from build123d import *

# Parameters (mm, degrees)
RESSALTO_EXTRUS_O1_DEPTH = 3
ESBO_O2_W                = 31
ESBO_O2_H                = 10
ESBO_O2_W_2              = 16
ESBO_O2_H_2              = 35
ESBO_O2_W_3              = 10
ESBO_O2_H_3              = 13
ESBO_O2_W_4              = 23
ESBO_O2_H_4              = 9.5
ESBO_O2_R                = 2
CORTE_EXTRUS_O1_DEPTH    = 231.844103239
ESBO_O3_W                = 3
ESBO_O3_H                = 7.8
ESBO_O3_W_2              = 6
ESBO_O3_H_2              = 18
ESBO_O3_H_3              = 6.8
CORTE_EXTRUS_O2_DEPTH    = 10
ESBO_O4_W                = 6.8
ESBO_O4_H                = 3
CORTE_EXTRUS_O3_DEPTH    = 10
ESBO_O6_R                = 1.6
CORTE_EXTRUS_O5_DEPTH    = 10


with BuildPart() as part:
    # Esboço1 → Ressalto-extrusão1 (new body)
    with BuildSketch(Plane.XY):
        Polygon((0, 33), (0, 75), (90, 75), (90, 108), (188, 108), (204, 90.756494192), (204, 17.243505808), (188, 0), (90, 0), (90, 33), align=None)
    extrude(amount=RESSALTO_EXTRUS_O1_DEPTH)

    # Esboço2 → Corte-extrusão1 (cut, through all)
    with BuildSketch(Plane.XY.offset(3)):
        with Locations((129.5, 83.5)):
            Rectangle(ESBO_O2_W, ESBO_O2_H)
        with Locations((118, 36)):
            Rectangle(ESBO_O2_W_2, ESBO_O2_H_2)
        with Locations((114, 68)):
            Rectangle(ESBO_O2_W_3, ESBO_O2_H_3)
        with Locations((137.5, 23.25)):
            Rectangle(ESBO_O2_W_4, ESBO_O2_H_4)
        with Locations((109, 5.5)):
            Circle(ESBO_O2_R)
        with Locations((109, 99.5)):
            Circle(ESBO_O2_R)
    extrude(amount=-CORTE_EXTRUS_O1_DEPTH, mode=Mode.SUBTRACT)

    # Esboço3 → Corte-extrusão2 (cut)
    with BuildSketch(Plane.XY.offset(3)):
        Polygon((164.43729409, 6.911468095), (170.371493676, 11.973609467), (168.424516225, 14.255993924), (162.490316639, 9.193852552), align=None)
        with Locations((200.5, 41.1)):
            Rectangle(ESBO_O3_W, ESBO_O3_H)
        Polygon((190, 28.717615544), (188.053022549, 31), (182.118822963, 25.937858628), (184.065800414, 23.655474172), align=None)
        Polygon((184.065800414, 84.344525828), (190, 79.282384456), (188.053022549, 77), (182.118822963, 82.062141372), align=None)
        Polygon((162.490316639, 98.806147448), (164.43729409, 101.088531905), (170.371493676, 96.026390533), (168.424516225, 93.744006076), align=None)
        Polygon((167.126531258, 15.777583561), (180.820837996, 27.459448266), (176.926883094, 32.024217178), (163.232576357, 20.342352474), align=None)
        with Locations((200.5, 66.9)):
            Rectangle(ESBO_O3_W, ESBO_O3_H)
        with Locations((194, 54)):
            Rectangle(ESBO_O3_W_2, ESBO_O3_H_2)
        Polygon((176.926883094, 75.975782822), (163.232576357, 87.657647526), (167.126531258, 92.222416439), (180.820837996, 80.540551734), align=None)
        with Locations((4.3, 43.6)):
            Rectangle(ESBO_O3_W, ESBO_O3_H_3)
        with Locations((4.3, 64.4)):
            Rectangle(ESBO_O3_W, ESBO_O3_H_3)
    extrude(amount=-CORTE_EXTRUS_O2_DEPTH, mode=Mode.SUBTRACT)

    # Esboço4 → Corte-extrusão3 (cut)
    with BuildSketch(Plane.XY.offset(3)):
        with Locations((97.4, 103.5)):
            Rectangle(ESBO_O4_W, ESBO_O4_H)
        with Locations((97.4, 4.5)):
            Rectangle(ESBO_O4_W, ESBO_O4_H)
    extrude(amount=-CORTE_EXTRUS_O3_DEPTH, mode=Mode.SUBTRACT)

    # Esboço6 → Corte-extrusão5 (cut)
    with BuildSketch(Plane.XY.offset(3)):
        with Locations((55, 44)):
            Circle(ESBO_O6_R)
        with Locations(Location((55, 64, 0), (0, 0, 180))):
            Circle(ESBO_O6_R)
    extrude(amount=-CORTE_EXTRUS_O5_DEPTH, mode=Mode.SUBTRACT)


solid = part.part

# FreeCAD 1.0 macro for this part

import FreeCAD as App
import Part
import Sketcher


def add_polygon(sketch, points):
    """Adds a closed chain of lines whose ends are joined by coincident constraints."""
    first, n = sketch.GeometryCount, len(points)
    for a, b in zip(points, points[1:] + points[:1]):
        sketch.addGeometry(Part.LineSegment(App.Vector(*a, 0), App.Vector(*b, 0)), False)
    for i in range(n):
        sketch.addConstraint(Sketcher.Constraint("Coincident", first + i, 2, first + (i + 1) % n, 1))

doc = App.newDocument("Part")
body = doc.addObject("PartDesign::Body", "Body")

sketch1 = body.newObject("Sketcher::SketchObject", "Sketch")
sketch1.AttachmentSupport = (doc.getObject("XY_Plane"), [""])
sketch1.MapMode = "FlatFace"
add_polygon(sketch1, [(0, 75), (0, 33), (90, 33), (90, 0), (188, 0), (204, 17.243506), (204, 90.756494), (188, 108), (90, 108), (90, 75)])
sketch1.addConstraint(Sketcher.Constraint("Vertical", 0))
sketch1.addConstraint(Sketcher.Constraint("Horizontal", 1))
sketch1.addConstraint(Sketcher.Constraint("Vertical", 2))
sketch1.addConstraint(Sketcher.Constraint("Horizontal", 3))
sketch1.addConstraint(Sketcher.Constraint("Vertical", 5))
sketch1.addConstraint(Sketcher.Constraint("Horizontal", 7))
sketch1.addConstraint(Sketcher.Constraint("Vertical", 8))
sketch1.addConstraint(Sketcher.Constraint("Horizontal", 9))
sketch1.addConstraint(Sketcher.Constraint("PointOnObject", 0, 2, -2))
sketch1.addConstraint(Sketcher.Constraint("PointOnObject", 2, 2, -1))
sketch1.addConstraint(Sketcher.Constraint("Vertical", 3, 2, 6, 2))
sketch1.addConstraint(Sketcher.Constraint("Vertical", 2, 2, 7, 2))
sketch1.addConstraint(Sketcher.Constraint("Equal", 2, 8))
sketch1.addConstraint(Sketcher.Constraint("Equal", 4, 6))
sketch1.addConstraint(Sketcher.Constraint("DistanceX", 1, 1, 1, 2, 90.0))
sketch1.addConstraint(Sketcher.Constraint("DistanceX", 3, 1, 3, 2, 98.0))
sketch1.addConstraint(Sketcher.Constraint("DistanceY", 0, 2, 0, 1, 42.0))
sketch1.addConstraint(Sketcher.Constraint("DistanceY", 2, 2, 2, 1, 33.0))
sketch1.addConstraint(Sketcher.Constraint("DistanceX", -1, 1, 4, 2, 204.0))
sketch1.addConstraint(Sketcher.Constraint("DistanceY", 5, 1, 5, 2, 73.512988))
pad1 = body.newObject("PartDesign::Pad", "Pad")
pad1.Profile = sketch1
pad1.Length = 3

sketch2 = body.newObject("Sketcher::SketchObject", "Sketch001")
sketch2.AttachmentSupport = (doc.getObject("XY_Plane"), [""])
sketch2.MapMode = "FlatFace"
sketch2.AttachmentOffset = App.Placement(App.Vector(0, 0, 3), App.Rotation())
add_polygon(sketch2, [(114, 88.5), (114, 78.5), (145, 78.5), (145, 88.5)])
add_polygon(sketch2, [(110, 53.5), (110, 18.5), (149, 18.5), (149, 28), (126, 28), (126, 53.5)])
add_polygon(sketch2, [(109, 74.5), (109, 61.5), (119, 61.5), (119, 74.5)])
sketch2.addGeometry(Part.Circle(App.Vector(109, 5.5, 0), App.Vector(0, 0, 1), 2), False)
sketch2.addGeometry(Part.Circle(App.Vector(109, 99.5, 0), App.Vector(0, 0, 1), 2), False)
sketch2.addConstraint(Sketcher.Constraint("Vertical", 0))
sketch2.addConstraint(Sketcher.Constraint("Horizontal", 1))
sketch2.addConstraint(Sketcher.Constraint("Vertical", 2))
sketch2.addConstraint(Sketcher.Constraint("Horizontal", 3))
sketch2.addConstraint(Sketcher.Constraint("Vertical", 4))
sketch2.addConstraint(Sketcher.Constraint("Horizontal", 5))
sketch2.addConstraint(Sketcher.Constraint("Vertical", 6))
sketch2.addConstraint(Sketcher.Constraint("Horizontal", 7))
sketch2.addConstraint(Sketcher.Constraint("Vertical", 8))
sketch2.addConstraint(Sketcher.Constraint("Horizontal", 9))
sketch2.addConstraint(Sketcher.Constraint("Vertical", 10))
sketch2.addConstraint(Sketcher.Constraint("Horizontal", 11))
sketch2.addConstraint(Sketcher.Constraint("Vertical", 12))
sketch2.addConstraint(Sketcher.Constraint("Horizontal", 13))
sketch2.addConstraint(Sketcher.Constraint("Equal", 14, 15))
sketch2.addConstraint(Sketcher.Constraint("Vertical", 14, 3, 15, 3))
sketch2.addConstraint(Sketcher.Constraint("Vertical", 15, 3, 10, 2))
sketch2.addConstraint(Sketcher.Constraint("Equal", 13, 0))
sketch2.addConstraint(Sketcher.Constraint("Diameter", 14, 4.0))
sketch2.addConstraint(Sketcher.Constraint("DistanceX", 1, 1, 1, 2, 31.0))
sketch2.addConstraint(Sketcher.Constraint("DistanceX", 5, 1, 5, 2, 39.0))
sketch2.addConstraint(Sketcher.Constraint("DistanceX", 7, 2, 7, 1, 23.0))
sketch2.addConstraint(Sketcher.Constraint("DistanceX", 11, 1, 11, 2, 10.0))
sketch2.addConstraint(Sketcher.Constraint("DistanceY", 4, 2, 4, 1, 35.0))
sketch2.addConstraint(Sketcher.Constraint("DistanceY", 10, 2, 10, 1, 13.0))
sketch2.addConstraint(Sketcher.Constraint("DistanceY", 6, 1, 6, 2, 9.5))
sketch2.addConstraint(Sketcher.Constraint("DistanceX", -1, 1, 14, 3, 109.0))
sketch2.addConstraint(Sketcher.Constraint("DistanceX", -1, 1, 0, 2, 114.0))
sketch2.addConstraint(Sketcher.Constraint("DistanceX", -1, 1, 4, 2, 110.0))
sketch2.addConstraint(Sketcher.Constraint("DistanceY", -1, 1, 6, 2, 28.0))
sketch2.addConstraint(Sketcher.Constraint("DistanceY", 14, 3, 15, 3, 94.0))
sketch2.addConstraint(Sketcher.Constraint("DistanceY", 0, 2, 15, 3, 21.0))
sketch2.addConstraint(Sketcher.Constraint("DistanceY", 14, 3, 4, 2, 13.0))
sketch2.addConstraint(Sketcher.Constraint("DistanceY", 9, 2, 10, 2, 8.0))
pocket1 = body.newObject("PartDesign::Pocket", "Pocket")
pocket1.Profile = sketch2
pocket1.Type = "ThroughAll"

sketch3 = body.newObject("Sketcher::SketchObject", "Sketch002")
sketch3.AttachmentSupport = (doc.getObject("XY_Plane"), [""])
sketch3.MapMode = "FlatFace"
sketch3.AttachmentOffset = App.Placement(App.Vector(0, 0, 3), App.Rotation())
add_polygon(sketch3, [(164.437294, 6.911468), (170.371494, 11.973609), (168.424516, 14.255994), (162.490317, 9.193853)])
add_polygon(sketch3, [(199, 45), (199, 37.2), (202, 37.2), (202, 45)])
add_polygon(sketch3, [(190, 28.717616), (188.053023, 31), (182.118823, 25.937859), (184.0658, 23.655474)])
add_polygon(sketch3, [(190, 79.282384), (184.0658, 84.344526), (182.118823, 82.062141), (188.053023, 77)])
add_polygon(sketch3, [(164.437294, 101.088532), (162.490317, 98.806147), (168.424516, 93.744006), (170.371494, 96.026391)])
add_polygon(sketch3, [(167.126531, 15.777584), (180.820838, 27.459448), (176.926883, 32.024217), (163.232576, 20.342352)])
add_polygon(sketch3, [(199, 70.8), (199, 63), (202, 63), (202, 70.8)])
add_polygon(sketch3, [(191, 63), (191, 45), (197, 45), (197, 63)])
add_polygon(sketch3, [(163.232576, 87.657648), (176.926883, 75.975783), (180.820838, 80.540552), (167.126531, 92.222416)])
add_polygon(sketch3, [(2.8, 47), (2.8, 40.2), (5.8, 40.2), (5.8, 47)])
add_polygon(sketch3, [(2.8, 67.8), (2.8, 61), (5.8, 61), (5.8, 67.8)])
sketch3.addConstraint(Sketcher.Constraint("Vertical", 4))
sketch3.addConstraint(Sketcher.Constraint("Horizontal", 5))
sketch3.addConstraint(Sketcher.Constraint("Vertical", 6))
sketch3.addConstraint(Sketcher.Constraint("Horizontal", 7))
sketch3.addConstraint(Sketcher.Constraint("Vertical", 24))
sketch3.addConstraint(Sketcher.Constraint("Horizontal", 25))
sketch3.addConstraint(Sketcher.Constraint("Vertical", 26))
sketch3.addConstraint(Sketcher.Constraint("Horizontal", 27))
sketch3.addConstraint(Sketcher.Constraint("Vertical", 28))
sketch3.addConstraint(Sketcher.Constraint("Horizontal", 29))
sketch3.addConstraint(Sketcher.Constraint("Vertical", 30))
sketch3.addConstraint(Sketcher.Constraint("Horizontal", 31))
sketch3.addConstraint(Sketcher.Constraint("Vertical", 36))
sketch3.addConstraint(Sketcher.Constraint("Horizontal", 37))
sketch3.addConstraint(Sketcher.Constraint("Vertical", 38))
sketch3.addConstraint(Sketcher.Constraint("Horizontal", 39))
sketch3.addConstraint(Sketcher.Constraint("Vertical", 40))
sketch3.addConstraint(Sketcher.Constraint("Horizontal", 41))
sketch3.addConstraint(Sketcher.Constraint("Vertical", 42))
sketch3.addConstraint(Sketcher.Constraint("Horizontal", 43))
sketch3.addConstraint(Sketcher.Constraint("Perpendicular", 0, 1))
sketch3.addConstraint(Sketcher.Constraint("Perpendicular", 1, 2))
sketch3.addConstraint(Sketcher.Constraint("Perpendicular", 2, 3))
sketch3.addConstraint(Sketcher.Constraint("Parallel", 3, 8))
sketch3.addConstraint(Sketcher.Constraint("Perpendicular", 8, 9))
sketch3.addConstraint(Sketcher.Constraint("Perpendicular", 9, 10))
sketch3.addConstraint(Sketcher.Constraint("Perpendicular", 10, 11))
sketch3.addConstraint(Sketcher.Constraint("Perpendicular", 12, 13))
sketch3.addConstraint(Sketcher.Constraint("Perpendicular", 13, 14))
sketch3.addConstraint(Sketcher.Constraint("Perpendicular", 14, 15))
sketch3.addConstraint(Sketcher.Constraint("Parallel", 15, 16))
sketch3.addConstraint(Sketcher.Constraint("Perpendicular", 16, 17))
sketch3.addConstraint(Sketcher.Constraint("Perpendicular", 17, 18))
sketch3.addConstraint(Sketcher.Constraint("Perpendicular", 18, 19))
sketch3.addConstraint(Sketcher.Constraint("Parallel", 11, 20))
sketch3.addConstraint(Sketcher.Constraint("Perpendicular", 20, 21))
sketch3.addConstraint(Sketcher.Constraint("Perpendicular", 21, 22))
sketch3.addConstraint(Sketcher.Constraint("Perpendicular", 22, 23))
sketch3.addConstraint(Sketcher.Constraint("Parallel", 19, 32))
sketch3.addConstraint(Sketcher.Constraint("Perpendicular", 32, 33))
sketch3.addConstraint(Sketcher.Constraint("Perpendicular", 33, 34))
sketch3.addConstraint(Sketcher.Constraint("Perpendicular", 34, 35))
sketch3.addConstraint(Sketcher.Constraint("Horizontal", 7, 2, 28, 2))
sketch3.addConstraint(Sketcher.Constraint("Horizontal", 25, 2, 30, 2))
sketch3.addConstraint(Sketcher.Constraint("Vertical", 10, 2, 12, 2))
sketch3.addConstraint(Sketcher.Constraint("Vertical", 9, 2, 13, 2))
sketch3.addConstraint(Sketcher.Constraint("Vertical", 8, 2, 14, 2))
sketch3.addConstraint(Sketcher.Constraint("Vertical", 2, 2, 16, 2))
sketch3.addConstraint(Sketcher.Constraint("Vertical", 1, 2, 17, 2))
sketch3.addConstraint(Sketcher.Constraint("Vertical", 0, 2, 18, 2))
sketch3.addConstraint(Sketcher.Constraint("Vertical", 7, 2, 24, 2))
sketch3.addConstraint(Sketcher.Constraint("Vertical", 6, 2, 25, 2))
sketch3.addConstraint(Sketcher.Constraint("Vertical", 21, 2, 32, 2))
sketch3.addConstraint(Sketcher.Constraint("Vertical", 20, 2, 33, 2))
sketch3.addConstraint(Sketcher.Constraint("Vertical", 23, 2, 34, 2))
sketch3.addConstraint(Sketcher.Constraint("Vertical", 39, 2, 40, 2))
sketch3.addConstraint(Sketcher.Constraint("Vertical", 38, 2, 41, 2))
sketch3.addConstraint(Sketcher.Constraint("Equal", 27, 37))
sketch3.addConstraint(Sketcher.Constraint("Equal", 6, 24))
sketch3.addConstraint(Sketcher.Constraint("Equal", 38, 40))
sketch3.addConstraint(Sketcher.Constraint("Equal", 3, 8))
sketch3.addConstraint(Sketcher.Constraint("Equal", 2, 9))
sketch3.addConstraint(Sketcher.Constraint("Equal", 11, 12))
sketch3.addConstraint(Sketcher.Constraint("DistanceX", 5, 1, 5, 2, 3.0))
sketch3.addConstraint(Sketcher.Constraint("DistanceX", 29, 1, 29, 2, 6.0))
sketch3.addConstraint(Sketcher.Constraint("DistanceY", 28, 2, 28, 1, 18.0))
sketch3.addConstraint(Sketcher.Constraint("Distance", 1, 3.0))
sketch3.addConstraint(Sketcher.Constraint("Distance", 20, 18.0))
sketch3.addConstraint(Sketcher.Constraint("Distance", 21, 6.0))
sketch3.addConstraint(Sketcher.Constraint("DistanceY", 4, 2, 4, 1, 7.8))
sketch3.addConstraint(Sketcher.Constraint("DistanceY", 36, 2, 36, 1, 6.8))
sketch3.addConstraint(Sketcher.Constraint("DistanceX", -1, 1, 4, 2, 199.0))
sketch3.addConstraint(Sketcher.Constraint("DistanceY", -1, 1, 6, 2, 45.0))
sketch3.addConstraint(Sketcher.Constraint("DistanceY", -1, 1, 8, 2, 31.0))
sketch3.addConstraint(Sketcher.Constraint("DistanceX", -1, 1, 11, 2, 190.0))
sketch3.addConstraint(Sketcher.Constraint("DistanceY", -1, 1, 14, 2, 77.0))
sketch3.addConstraint(Sketcher.Constraint("DistanceX", -1, 1, 28, 2, 191.0))
sketch3.addConstraint(Sketcher.Constraint("DistanceY", -1, 1, 38, 2, 47.0))
sketch3.addConstraint(Sketcher.Constraint("DistanceY", -1, 1, 40, 2, 61.0))
sketch3.addConstraint(Sketcher.Constraint("Distance", 0, 7.8))
sketch3.addConstraint(Sketcher.Constraint("DistanceX", -1, 1, 36, 2, 2.8))
sketch3.addConstraint(Sketcher.Constraint("DistanceX", -1, 1, 10, 2, 184.0658))
sketch3.addConstraint(Sketcher.Constraint("DistanceY", 11, 2, 21, 2, 3.306602))
sketch3.addConstraint(Sketcher.Constraint("DistanceY", 2, 2, 22, 2, 11.1485))
sketch3.addConstraint(Sketcher.Constraint("DistanceY", 32, 2, 15, 2, 3.306602))
sketch3.addConstraint(Sketcher.Constraint("DistanceY", 35, 2, 16, 2, 11.1485))
sketch3.addConstraint(Sketcher.Constraint("DistanceX", -1, 1, 23, 2, 167.126531))
sketch3.addConstraint(Sketcher.Constraint("DistanceX", 0, 2, 9, 2, 11.747329))
pocket2 = body.newObject("PartDesign::Pocket", "Pocket001")
pocket2.Profile = sketch3
pocket2.Length = 10

sketch4 = body.newObject("Sketcher::SketchObject", "Sketch003")
sketch4.AttachmentSupport = (doc.getObject("XY_Plane"), [""])
sketch4.MapMode = "FlatFace"
sketch4.AttachmentOffset = App.Placement(App.Vector(0, 0, 3), App.Rotation())
add_polygon(sketch4, [(94, 105), (94, 102), (100.8, 102), (100.8, 105)])
add_polygon(sketch4, [(94, 6), (94, 3), (100.8, 3), (100.8, 6)])
sketch4.addConstraint(Sketcher.Constraint("Vertical", 0))
sketch4.addConstraint(Sketcher.Constraint("Horizontal", 1))
sketch4.addConstraint(Sketcher.Constraint("Vertical", 2))
sketch4.addConstraint(Sketcher.Constraint("Horizontal", 3))
sketch4.addConstraint(Sketcher.Constraint("Vertical", 4))
sketch4.addConstraint(Sketcher.Constraint("Horizontal", 5))
sketch4.addConstraint(Sketcher.Constraint("Vertical", 6))
sketch4.addConstraint(Sketcher.Constraint("Horizontal", 7))
sketch4.addConstraint(Sketcher.Constraint("Vertical", 3, 2, 4, 2))
sketch4.addConstraint(Sketcher.Constraint("Vertical", 2, 2, 5, 2))
sketch4.addConstraint(Sketcher.Constraint("Equal", 2, 4))
sketch4.addConstraint(Sketcher.Constraint("DistanceY", 0, 2, 0, 1, 3.0))
sketch4.addConstraint(Sketcher.Constraint("DistanceX", 1, 1, 1, 2, 6.8))
sketch4.addConstraint(Sketcher.Constraint("DistanceX", -1, 1, 0, 2, 94.0))
sketch4.addConstraint(Sketcher.Constraint("DistanceY", -1, 1, 0, 2, 102.0))
sketch4.addConstraint(Sketcher.Constraint("DistanceY", -1, 1, 4, 2, 3.0))
pocket3 = body.newObject("PartDesign::Pocket", "Pocket002")
pocket3.Profile = sketch4
pocket3.Length = 10

sketch5 = body.newObject("Sketcher::SketchObject", "Sketch004")
sketch5.AttachmentSupport = (doc.getObject("XY_Plane"), [""])
sketch5.MapMode = "FlatFace"
sketch5.AttachmentOffset = App.Placement(App.Vector(0, 0, 3), App.Rotation())
sketch5.addGeometry(Part.Circle(App.Vector(55, 44, 0), App.Vector(0, 0, 1), 1.6), False)
sketch5.addGeometry(Part.Circle(App.Vector(55, 64, 0), App.Vector(0, 0, 1), 1.6), False)
sketch5.addConstraint(Sketcher.Constraint("Equal", 0, 1))
sketch5.addConstraint(Sketcher.Constraint("Vertical", 0, 3, 1, 3))
sketch5.addConstraint(Sketcher.Constraint("Diameter", 0, 3.2))
sketch5.addConstraint(Sketcher.Constraint("DistanceX", -1, 1, 0, 3, 55.0))
sketch5.addConstraint(Sketcher.Constraint("DistanceY", -1, 1, 0, 3, 44.0))
sketch5.addConstraint(Sketcher.Constraint("DistanceY", -1, 1, 1, 3, 64.0))
pocket4 = body.newObject("PartDesign::Pocket", "Pocket003")
pocket4.Profile = sketch5
pocket4.Length = 10

doc.recompute()
